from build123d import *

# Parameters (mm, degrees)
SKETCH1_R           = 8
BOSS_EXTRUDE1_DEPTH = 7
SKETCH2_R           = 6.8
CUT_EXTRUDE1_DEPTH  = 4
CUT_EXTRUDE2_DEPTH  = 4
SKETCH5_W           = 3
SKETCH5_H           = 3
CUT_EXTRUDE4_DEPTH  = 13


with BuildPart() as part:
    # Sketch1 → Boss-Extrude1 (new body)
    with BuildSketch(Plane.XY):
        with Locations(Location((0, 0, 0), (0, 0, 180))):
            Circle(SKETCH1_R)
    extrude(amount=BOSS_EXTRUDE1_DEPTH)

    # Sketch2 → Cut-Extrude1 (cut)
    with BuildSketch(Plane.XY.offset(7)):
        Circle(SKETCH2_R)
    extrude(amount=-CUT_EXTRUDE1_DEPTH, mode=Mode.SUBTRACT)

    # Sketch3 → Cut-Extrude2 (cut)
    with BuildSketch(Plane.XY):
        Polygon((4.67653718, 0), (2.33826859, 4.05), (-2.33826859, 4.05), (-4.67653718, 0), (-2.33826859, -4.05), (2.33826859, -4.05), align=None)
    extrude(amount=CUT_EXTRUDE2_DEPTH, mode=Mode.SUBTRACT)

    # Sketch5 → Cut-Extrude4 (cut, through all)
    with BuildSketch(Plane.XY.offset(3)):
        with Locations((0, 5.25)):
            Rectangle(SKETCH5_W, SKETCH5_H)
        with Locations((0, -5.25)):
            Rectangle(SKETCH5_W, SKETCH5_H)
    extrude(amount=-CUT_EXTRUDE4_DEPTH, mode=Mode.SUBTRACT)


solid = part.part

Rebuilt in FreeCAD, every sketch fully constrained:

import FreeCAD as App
import Part
import Sketcher
from FreeCAD import Vector
Q = App.Units.Quantity


def add_polygon(sketch, points):
    """Adds a closed chain of lines whose ends are joined by coincident constraints."""
    first, n = sketch.GeometryCount, len(points)
    for a, b in zip(points, points[1:] + points[:1]):
        sketch.addGeometry(Part.LineSegment(App.Vector(*a, 0), App.Vector(*b, 0)), False)
    for i in range(n):
        sketch.addConstraint(Sketcher.Constraint("Coincident", first + i, 2, first + (i + 1) % n, 1))

doc = App.newDocument("Part")
body = doc.addObject("PartDesign::Body", "Body")

# Sketch on XY plane
sketch1 = body.newObject("Sketcher::SketchObject", "Sketch")
sketch1.AttachmentSupport = (doc.getObject("XY_Plane"), [""])
sketch1.MapMode = "FlatFace"
sketch1.addGeometry(Part.Circle(Vector(0, 0, 0), Vector(0, 0, 1), 8), False)
sketch1.addConstraint([
    Sketcher.Constraint("Coincident", 0, 3, -1, 1),
    Sketcher.Constraint("Diameter", 0, 16.0),
])
pad1 = body.newObject("PartDesign::Pad", "Pad")
pad1.Profile = sketch1
pad1.Length = 7

# Sketch on XY plane
sketch2 = body.newObject("Sketcher::SketchObject", "Sketch001")
sketch2.AttachmentSupport = (doc.getObject("XY_Plane"), [""])
sketch2.MapMode = "FlatFace"
sketch2.AttachmentOffset = App.Placement(Vector(0, 0, 7), App.Rotation())
sketch2.addGeometry(Part.Circle(Vector(0, 0, 0), Vector(0, 0, 1), 7), False)
sketch2.addConstraint([
    Sketcher.Constraint("Coincident", 0, 3, -1, 1),
    Sketcher.Constraint("Diameter", 0, 13.6),
])
pocket1 = body.newObject("PartDesign::Pocket", "Pocket")
pocket1.Profile = sketch2
pocket1.Length = 4

# Sketch on XY plane
sketch3 = body.newObject("Sketcher::SketchObject", "Sketch002")
sketch3.AttachmentSupport = (doc.getObject("XY_Plane"), [""])
sketch3.MapMode = "FlatFace"
add_polygon(sketch3, [(4.7, 0), (2.3, 4), (-2.3, 4), (-4.7, 0), (-2.3, -4), (2.3, -4)])  # lines 0-5
sketch3.addConstraint([
    Sketcher.Constraint("Horizontal", 1),
    Sketcher.Constraint("Horizontal", 4),
    Sketcher.Constraint("Symmetric", 0, 2, 3, 2, -1, 1),
    Sketcher.Constraint("Symmetric", 2, 2, 5, 2, -1, 1),
    Sketcher.Constraint("PointOnObject", 2, 2, -1),
    Sketcher.Constraint("Parallel", 2, 5),
    Sketcher.Constraint("Vertical", 1, 2, 3, 2),
    Sketcher.Constraint("Angle", 0, Q("120 deg")),
    Sketcher.Constraint("DistanceY", 3, 2, 1, 2, 8.1),
    Sketcher.Constraint("DistanceX", 1, 2, 1, 1, 4.676537),
])
pocket2 = body.newObject("PartDesign::Pocket", "Pocket001")
pocket2.Profile = sketch3
pocket2.Length = 4
pocket2.Reversed = True

# Sketch on XY plane
sketch4 = body.newObject("Sketcher::SketchObject", "Sketch003")
sketch4.AttachmentSupport = (doc.getObject("XY_Plane"), [""])
sketch4.MapMode = "FlatFace"
sketch4.AttachmentOffset = App.Placement(Vector(0, 0, 3), App.Rotation())
add_polygon(sketch4, [(-1.5, 6.8), (-1.5, 3.8), (1.5, 3.8), (1.5, 6.8)])  # lines 0-3
add_polygon(sketch4, [(-1.5, -3.8), (-1.5, -6.8), (1.5, -6.8), (1.5, -3.8)])  # lines 4-7
sketch4.addConstraint([
    Sketcher.Constraint("Vertical", 0),
    Sketcher.Constraint("Horizontal", 1),
    Sketcher.Constraint("Vertical", 2),
    Sketcher.Constraint("Horizontal", 3),
    Sketcher.Constraint("Vertical", 4),
    Sketcher.Constraint("Horizontal", 5),
    Sketcher.Constraint("Vertical", 6),
    Sketcher.Constraint("Horizontal", 7),
    Sketcher.Constraint("Symmetric", 2, 2, 4, 2, -1, 1),
    Sketcher.Constraint("Symmetric", 0, 2, 6, 2, -1, 1),
    Sketcher.Constraint("Vertical", 3, 2, 4, 2),
    Sketcher.Constraint("Equal", 7, 0),
    Sketcher.Constraint("DistanceX", 1, 1, 1, 2, 3.0),
    Sketcher.Constraint("DistanceY", 4, 2, 0, 2, 10.5),
])
pocket3 = body.newObject("PartDesign::Pocket", "Pocket002")
pocket3.Profile = sketch4
pocket3.Type = "ThroughAll"

doc.recompute()
